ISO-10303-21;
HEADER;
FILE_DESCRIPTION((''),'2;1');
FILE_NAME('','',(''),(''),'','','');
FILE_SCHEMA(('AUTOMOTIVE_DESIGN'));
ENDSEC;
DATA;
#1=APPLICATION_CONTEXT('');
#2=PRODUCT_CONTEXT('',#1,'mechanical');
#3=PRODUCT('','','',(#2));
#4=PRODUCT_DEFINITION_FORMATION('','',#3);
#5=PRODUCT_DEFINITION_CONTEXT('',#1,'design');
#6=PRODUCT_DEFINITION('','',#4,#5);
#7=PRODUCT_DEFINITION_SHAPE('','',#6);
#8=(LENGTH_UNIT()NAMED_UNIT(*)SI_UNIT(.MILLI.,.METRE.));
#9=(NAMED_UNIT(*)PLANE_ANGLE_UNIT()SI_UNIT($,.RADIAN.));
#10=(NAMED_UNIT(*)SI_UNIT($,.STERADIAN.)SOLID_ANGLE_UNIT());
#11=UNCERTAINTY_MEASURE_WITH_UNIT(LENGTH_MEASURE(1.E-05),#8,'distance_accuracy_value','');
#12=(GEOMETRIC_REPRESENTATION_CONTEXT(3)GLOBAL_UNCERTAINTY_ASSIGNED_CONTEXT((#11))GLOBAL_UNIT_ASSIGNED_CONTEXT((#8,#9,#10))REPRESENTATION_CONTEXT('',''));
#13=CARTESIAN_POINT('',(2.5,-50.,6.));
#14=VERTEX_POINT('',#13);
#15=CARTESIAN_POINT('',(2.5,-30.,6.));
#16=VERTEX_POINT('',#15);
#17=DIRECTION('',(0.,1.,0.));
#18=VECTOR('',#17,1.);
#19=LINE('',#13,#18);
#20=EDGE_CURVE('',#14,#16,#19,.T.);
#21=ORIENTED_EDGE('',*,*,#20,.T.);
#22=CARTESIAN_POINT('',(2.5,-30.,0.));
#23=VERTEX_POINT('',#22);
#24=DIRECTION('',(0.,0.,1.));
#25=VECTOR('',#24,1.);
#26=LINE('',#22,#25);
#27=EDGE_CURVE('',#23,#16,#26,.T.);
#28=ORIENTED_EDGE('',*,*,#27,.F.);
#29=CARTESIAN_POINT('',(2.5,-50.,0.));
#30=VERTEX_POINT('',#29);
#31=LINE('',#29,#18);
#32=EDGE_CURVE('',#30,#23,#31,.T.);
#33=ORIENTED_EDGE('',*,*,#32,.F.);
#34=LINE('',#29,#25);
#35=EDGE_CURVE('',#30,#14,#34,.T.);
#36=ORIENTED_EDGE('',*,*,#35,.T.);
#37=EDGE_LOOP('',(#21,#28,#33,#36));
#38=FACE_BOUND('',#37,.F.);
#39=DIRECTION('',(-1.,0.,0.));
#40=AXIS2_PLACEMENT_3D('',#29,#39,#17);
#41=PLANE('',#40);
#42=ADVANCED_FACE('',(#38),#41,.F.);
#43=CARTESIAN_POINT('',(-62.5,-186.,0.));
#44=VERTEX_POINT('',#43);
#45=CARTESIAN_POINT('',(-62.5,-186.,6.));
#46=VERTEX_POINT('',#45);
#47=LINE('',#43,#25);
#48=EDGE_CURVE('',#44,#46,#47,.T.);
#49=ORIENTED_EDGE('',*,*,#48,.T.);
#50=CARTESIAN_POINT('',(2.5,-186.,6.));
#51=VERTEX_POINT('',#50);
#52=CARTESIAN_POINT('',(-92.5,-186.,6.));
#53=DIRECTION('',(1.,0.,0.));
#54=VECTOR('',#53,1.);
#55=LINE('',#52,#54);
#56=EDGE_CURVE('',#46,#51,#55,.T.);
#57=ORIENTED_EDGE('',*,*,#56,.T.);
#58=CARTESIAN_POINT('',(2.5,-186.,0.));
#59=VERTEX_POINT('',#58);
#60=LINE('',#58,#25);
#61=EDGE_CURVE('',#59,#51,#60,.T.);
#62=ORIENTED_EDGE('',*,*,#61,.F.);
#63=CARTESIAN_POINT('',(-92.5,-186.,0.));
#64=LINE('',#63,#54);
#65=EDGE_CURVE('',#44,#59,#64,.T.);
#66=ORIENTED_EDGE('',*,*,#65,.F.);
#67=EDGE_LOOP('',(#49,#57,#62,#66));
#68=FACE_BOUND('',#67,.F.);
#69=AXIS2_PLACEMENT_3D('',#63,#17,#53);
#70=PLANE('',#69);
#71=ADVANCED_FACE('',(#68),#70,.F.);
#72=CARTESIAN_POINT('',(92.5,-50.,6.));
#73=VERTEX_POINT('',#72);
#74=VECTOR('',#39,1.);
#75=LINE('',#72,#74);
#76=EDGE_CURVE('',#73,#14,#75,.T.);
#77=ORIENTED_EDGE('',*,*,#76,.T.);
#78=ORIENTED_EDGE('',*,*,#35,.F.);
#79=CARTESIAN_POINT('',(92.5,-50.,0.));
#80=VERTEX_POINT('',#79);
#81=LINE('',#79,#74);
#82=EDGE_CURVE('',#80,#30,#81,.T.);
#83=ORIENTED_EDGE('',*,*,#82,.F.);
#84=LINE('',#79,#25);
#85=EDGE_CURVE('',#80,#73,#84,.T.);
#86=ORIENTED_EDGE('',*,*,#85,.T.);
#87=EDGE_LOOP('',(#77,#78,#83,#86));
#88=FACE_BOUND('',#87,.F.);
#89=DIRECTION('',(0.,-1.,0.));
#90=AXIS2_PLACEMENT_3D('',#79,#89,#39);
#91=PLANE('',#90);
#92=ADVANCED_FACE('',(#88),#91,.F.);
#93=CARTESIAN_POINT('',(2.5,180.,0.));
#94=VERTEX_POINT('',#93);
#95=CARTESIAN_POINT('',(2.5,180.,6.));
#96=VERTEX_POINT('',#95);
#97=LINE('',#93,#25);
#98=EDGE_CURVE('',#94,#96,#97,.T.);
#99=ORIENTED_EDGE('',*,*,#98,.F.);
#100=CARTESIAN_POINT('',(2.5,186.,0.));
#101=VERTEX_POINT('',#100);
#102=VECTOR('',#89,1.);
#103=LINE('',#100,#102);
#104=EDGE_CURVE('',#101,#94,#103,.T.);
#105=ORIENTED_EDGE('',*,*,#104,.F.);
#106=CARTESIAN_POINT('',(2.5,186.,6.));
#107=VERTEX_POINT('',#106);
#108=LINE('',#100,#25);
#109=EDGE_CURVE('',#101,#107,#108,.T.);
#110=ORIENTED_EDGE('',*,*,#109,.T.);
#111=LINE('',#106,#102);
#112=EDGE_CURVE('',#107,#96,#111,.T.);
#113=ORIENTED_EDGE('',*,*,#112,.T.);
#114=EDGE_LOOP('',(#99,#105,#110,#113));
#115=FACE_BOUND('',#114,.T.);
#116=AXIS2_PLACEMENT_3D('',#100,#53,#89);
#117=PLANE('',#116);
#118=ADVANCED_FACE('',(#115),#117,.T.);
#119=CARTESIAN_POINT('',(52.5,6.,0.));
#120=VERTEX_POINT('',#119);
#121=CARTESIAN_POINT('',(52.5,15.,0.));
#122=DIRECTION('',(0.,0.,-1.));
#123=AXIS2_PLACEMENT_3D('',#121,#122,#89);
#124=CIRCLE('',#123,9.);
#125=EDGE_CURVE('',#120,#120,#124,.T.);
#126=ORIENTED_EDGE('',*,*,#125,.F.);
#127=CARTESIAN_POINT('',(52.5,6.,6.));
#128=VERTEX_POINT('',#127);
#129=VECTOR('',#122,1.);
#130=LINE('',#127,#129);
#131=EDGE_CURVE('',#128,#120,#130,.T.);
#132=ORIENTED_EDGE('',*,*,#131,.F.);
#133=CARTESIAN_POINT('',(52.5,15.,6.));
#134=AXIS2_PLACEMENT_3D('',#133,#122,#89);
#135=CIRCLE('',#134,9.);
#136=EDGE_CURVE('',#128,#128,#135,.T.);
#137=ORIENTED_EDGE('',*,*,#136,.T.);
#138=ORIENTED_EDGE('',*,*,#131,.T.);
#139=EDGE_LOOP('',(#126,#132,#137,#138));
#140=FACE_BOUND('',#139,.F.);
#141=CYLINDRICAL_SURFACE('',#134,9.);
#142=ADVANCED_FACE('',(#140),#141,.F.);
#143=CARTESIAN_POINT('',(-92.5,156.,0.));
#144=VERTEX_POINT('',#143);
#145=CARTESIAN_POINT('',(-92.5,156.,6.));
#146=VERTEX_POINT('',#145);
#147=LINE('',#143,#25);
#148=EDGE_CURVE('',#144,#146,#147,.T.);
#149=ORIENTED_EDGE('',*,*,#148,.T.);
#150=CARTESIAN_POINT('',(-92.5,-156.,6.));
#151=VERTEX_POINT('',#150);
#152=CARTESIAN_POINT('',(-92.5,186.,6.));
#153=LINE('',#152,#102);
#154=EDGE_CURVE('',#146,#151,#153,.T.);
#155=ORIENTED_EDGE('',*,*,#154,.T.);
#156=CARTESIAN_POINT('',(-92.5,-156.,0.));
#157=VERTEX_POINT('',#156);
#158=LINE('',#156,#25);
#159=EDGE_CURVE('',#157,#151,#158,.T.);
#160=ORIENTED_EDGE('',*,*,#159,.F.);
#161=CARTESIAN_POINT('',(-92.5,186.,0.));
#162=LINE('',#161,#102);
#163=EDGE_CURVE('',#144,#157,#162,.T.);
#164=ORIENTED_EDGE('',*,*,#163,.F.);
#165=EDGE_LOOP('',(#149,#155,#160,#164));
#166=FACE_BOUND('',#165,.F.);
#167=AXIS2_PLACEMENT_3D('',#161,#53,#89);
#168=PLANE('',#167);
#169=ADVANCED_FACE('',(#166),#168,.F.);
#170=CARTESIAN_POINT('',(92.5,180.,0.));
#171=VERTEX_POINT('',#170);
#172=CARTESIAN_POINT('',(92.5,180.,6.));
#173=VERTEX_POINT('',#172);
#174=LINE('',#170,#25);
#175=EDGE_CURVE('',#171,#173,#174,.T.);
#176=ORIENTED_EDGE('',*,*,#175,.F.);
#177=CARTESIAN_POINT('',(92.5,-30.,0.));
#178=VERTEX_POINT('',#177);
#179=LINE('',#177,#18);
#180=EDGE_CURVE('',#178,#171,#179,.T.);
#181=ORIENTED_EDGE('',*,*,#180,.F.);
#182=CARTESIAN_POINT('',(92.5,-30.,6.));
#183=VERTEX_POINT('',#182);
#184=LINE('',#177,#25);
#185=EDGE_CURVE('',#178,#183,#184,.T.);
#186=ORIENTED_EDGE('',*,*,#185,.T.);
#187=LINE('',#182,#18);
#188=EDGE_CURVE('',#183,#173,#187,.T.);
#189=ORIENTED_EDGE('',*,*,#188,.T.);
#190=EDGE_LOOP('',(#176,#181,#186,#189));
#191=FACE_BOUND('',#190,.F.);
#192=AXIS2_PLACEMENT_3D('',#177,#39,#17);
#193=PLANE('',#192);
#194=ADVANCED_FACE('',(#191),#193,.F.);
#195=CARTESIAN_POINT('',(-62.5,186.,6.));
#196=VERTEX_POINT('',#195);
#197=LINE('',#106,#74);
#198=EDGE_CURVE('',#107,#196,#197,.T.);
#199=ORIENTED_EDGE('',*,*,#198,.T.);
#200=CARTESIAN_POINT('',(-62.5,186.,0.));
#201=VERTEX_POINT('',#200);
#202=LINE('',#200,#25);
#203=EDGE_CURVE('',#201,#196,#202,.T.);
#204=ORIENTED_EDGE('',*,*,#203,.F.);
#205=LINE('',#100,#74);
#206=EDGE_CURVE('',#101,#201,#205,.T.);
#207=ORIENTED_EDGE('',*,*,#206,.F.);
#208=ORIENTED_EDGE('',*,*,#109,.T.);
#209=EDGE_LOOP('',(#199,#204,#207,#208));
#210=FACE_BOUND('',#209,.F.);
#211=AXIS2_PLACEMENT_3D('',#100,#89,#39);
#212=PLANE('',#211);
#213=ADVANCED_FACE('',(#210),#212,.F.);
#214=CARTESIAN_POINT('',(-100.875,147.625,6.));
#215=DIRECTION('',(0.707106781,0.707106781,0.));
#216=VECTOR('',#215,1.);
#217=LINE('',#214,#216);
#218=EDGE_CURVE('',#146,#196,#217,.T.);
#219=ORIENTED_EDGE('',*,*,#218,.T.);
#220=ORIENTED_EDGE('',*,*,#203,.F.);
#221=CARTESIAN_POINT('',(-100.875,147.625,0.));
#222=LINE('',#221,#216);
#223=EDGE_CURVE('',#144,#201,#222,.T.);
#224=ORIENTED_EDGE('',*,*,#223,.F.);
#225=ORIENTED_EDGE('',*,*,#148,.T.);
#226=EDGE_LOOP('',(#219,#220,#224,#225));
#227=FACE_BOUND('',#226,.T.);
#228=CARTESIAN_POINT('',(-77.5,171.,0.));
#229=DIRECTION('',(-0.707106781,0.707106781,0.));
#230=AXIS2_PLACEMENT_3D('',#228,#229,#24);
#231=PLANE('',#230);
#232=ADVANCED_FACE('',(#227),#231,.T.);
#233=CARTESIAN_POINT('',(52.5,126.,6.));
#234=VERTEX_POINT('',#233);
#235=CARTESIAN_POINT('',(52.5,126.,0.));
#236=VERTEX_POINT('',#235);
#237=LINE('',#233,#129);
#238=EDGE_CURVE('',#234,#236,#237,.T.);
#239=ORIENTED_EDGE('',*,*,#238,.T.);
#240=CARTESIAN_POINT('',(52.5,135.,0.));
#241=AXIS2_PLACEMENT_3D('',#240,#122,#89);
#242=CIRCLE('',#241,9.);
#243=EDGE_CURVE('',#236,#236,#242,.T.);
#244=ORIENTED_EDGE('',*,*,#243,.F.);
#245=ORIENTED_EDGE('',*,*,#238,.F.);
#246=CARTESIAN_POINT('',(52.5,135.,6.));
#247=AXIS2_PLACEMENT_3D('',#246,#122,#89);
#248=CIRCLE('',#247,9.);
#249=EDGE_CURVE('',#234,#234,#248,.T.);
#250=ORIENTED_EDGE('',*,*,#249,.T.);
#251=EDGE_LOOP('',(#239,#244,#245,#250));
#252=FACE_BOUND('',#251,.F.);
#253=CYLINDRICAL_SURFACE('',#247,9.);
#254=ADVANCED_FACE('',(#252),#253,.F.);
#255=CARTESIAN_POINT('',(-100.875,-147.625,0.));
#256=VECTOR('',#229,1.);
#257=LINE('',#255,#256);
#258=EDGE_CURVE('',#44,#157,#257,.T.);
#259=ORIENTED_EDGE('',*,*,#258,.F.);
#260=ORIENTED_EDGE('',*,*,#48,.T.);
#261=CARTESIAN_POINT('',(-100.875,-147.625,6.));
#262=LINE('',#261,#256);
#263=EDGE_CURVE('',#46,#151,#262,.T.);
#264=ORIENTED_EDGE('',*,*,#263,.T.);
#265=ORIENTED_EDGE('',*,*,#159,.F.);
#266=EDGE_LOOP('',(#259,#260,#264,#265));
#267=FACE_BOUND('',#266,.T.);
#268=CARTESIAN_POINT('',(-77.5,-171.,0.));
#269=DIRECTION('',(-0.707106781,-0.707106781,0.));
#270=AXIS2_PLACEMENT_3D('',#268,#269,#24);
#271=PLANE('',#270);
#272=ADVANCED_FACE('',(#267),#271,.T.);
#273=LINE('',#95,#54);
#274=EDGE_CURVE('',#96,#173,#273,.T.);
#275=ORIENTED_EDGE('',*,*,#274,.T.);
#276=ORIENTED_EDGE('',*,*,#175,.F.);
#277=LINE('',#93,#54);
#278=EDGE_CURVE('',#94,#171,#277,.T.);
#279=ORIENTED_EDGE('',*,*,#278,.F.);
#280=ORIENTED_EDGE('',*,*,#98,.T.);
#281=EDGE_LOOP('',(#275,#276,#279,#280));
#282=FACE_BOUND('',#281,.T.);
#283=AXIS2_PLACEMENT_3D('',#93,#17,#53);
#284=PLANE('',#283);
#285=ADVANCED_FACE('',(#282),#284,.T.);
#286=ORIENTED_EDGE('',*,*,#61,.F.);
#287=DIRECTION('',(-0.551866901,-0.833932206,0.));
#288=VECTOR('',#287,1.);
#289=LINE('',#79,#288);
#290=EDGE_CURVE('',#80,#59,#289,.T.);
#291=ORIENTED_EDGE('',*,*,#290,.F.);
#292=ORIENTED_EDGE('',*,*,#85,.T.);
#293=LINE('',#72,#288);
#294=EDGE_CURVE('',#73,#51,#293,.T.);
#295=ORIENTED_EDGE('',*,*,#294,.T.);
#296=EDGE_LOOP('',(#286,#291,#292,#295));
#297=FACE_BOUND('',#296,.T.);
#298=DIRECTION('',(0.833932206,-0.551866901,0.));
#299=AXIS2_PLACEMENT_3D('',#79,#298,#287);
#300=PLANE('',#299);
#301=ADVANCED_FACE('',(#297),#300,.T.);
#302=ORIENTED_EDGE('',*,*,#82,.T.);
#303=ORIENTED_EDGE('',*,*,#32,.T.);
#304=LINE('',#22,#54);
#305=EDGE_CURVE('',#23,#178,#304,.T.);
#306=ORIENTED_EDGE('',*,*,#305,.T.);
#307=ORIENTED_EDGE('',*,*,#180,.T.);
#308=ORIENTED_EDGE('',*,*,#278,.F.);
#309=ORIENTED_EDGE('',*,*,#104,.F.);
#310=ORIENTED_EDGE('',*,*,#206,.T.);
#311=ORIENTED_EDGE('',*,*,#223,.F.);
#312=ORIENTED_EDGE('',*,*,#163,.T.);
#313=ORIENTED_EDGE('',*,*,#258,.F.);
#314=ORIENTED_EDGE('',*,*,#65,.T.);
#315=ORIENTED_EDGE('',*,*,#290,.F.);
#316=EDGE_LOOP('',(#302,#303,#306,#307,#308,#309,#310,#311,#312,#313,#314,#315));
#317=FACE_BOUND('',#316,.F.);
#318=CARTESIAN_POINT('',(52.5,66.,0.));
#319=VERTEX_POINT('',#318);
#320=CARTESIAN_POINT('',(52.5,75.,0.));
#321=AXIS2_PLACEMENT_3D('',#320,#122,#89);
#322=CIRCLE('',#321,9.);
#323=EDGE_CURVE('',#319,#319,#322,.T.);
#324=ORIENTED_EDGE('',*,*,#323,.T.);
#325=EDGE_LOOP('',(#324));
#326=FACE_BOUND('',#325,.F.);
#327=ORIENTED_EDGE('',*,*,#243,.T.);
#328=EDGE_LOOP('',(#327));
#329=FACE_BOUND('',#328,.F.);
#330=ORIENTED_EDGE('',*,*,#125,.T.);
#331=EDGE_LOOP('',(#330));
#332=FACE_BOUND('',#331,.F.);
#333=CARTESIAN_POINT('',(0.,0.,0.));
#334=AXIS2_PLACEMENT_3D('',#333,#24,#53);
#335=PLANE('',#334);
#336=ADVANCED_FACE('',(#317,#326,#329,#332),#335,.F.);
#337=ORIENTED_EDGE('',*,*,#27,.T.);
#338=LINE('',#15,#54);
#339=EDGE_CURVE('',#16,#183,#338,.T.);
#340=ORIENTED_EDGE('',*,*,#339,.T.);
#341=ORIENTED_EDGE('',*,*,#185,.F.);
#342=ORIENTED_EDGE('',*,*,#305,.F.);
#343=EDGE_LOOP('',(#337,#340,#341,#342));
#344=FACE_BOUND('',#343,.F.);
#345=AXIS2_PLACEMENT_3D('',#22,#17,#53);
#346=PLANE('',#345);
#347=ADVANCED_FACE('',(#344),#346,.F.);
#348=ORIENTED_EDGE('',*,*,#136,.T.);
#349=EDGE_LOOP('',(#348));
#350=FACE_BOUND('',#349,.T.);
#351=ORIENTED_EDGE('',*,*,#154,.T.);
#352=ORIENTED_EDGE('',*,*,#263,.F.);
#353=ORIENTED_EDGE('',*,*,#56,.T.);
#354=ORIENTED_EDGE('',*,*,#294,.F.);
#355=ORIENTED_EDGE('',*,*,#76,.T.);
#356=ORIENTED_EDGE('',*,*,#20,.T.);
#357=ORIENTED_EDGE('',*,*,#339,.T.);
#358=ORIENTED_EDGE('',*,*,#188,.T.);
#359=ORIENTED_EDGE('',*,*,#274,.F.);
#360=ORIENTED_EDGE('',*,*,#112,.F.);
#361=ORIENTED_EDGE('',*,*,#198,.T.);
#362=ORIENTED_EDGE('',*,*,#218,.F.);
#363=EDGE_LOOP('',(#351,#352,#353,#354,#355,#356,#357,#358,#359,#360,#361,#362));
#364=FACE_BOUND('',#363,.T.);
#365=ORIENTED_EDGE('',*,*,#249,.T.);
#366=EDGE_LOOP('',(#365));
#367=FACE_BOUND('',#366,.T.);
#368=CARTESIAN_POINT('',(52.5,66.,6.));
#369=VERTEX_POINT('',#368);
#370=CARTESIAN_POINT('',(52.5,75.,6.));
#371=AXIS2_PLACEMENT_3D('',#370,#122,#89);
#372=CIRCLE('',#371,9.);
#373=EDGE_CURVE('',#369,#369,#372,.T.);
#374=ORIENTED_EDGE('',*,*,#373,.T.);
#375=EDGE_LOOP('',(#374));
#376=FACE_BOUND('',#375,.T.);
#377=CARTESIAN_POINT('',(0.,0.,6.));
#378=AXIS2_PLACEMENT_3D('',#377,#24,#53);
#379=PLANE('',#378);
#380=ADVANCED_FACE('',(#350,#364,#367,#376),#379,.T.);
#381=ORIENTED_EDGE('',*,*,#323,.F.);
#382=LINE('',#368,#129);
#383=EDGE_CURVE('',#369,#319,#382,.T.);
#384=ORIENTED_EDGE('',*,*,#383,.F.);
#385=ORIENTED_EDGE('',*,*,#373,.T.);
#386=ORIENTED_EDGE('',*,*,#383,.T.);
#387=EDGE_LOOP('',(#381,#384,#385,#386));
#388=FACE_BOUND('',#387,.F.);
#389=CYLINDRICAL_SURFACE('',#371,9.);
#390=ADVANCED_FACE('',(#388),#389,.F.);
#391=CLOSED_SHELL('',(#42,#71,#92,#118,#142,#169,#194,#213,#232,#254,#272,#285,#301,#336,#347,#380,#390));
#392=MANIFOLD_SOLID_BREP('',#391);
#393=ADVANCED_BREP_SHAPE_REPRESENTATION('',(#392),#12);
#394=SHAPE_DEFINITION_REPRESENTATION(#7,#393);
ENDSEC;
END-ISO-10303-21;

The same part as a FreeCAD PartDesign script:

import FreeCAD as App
import Part
import Sketcher
Q = App.Units.Quantity


def edges_at(feature, points):
    """Names of the edges that pass closest to the given points."""
    edges = feature.Shape.Edges
    near = lambda p: min(range(len(edges)), key=lambda i: edges[i].distToShape(Part.Vertex(*p))[0])
    return sorted({f"Edge{near(p) + 1}" for p in points})


def add_polygon(sketch, points):
    """Adds a closed chain of lines whose ends are joined by coincident constraints."""
    first, n = sketch.GeometryCount, len(points)
    for a, b in zip(points, points[1:] + points[:1]):
        sketch.addGeometry(Part.LineSegment(App.Vector(*a, 0), App.Vector(*b, 0)), False)
    for i in range(n):
        sketch.addConstraint(Sketcher.Constraint("Coincident", first + i, 2, first + (i + 1) % n, 1))

doc = App.newDocument("Part")
body = doc.addObject("PartDesign::Body", "Body")

sketch1 = body.newObject("Sketcher::SketchObject", "Sketch")
sketch1.AttachmentSupport = (doc.getObject("XY_Plane"), [""])
sketch1.MapMode = "FlatFace"
add_polygon(sketch1, [(2, 180), (2, 186), (-92, 186), (-92, -186), (2, -186), (92, -50), (2, -50), (2, -30), (92, -30), (92, 180)])
sketch1.addConstraint(Sketcher.Constraint("Vertical", 0))
sketch1.addConstraint(Sketcher.Constraint("Horizontal", 1))
sketch1.addConstraint(Sketcher.Constraint("Vertical", 2))
sketch1.addConstraint(Sketcher.Constraint("Horizontal", 3))
sketch1.addConstraint(Sketcher.Constraint("Horizontal", 5))
sketch1.addConstraint(Sketcher.Constraint("Vertical", 6))
sketch1.addConstraint(Sketcher.Constraint("Horizontal", 7))
sketch1.addConstraint(Sketcher.Constraint("Vertical", 8))
sketch1.addConstraint(Sketcher.Constraint("Horizontal", 9))
sketch1.addConstraint(Sketcher.Constraint("Symmetric", 0, 2, 3, 2, -1))
sketch1.addConstraint(Sketcher.Constraint("Vertical", 3, 2, 5, 2))
sketch1.addConstraint(Sketcher.Constraint("Vertical", 4, 2, 7, 2))
sketch1.addConstraint(Sketcher.Constraint("DistanceX", 1, 2, 1, 1, Q("95 mm")))
sketch1.addConstraint(Sketcher.Constraint("DistanceX", 5, 2, 5, 1, Q("90 mm")))
sketch1.addConstraint(Sketcher.Constraint("DistanceY", 2, 2, 2, 1, Q("372 mm")))
sketch1.addConstraint(Sketcher.Constraint("DistanceY", 6, 1, 6, 2, Q("20 mm")))
sketch1.addConstraint(Sketcher.Constraint("DistanceY", 0, 1, 0, 2, Q("6 mm")))
sketch1.addConstraint(Sketcher.Constraint("DistanceY", 8, 1, 8, 2, Q("210 mm")))
sketch1.addConstraint(Sketcher.Constraint("DistanceX", -1, 1, 0, 2, Q("2.5 mm")))
pad1 = body.newObject("PartDesign::Pad", "Pad")
pad1.Profile = sketch1
pad1.Length = 6
doc.recompute()

chamfer = body.newObject("PartDesign::Chamfer", "Chamfer")
chamfer.Base = (pad1, edges_at(pad1, [(-92.5, -186, 3), (-92.5, 186, 3)]))
chamfer.Size = 30

sketch2 = body.newObject("Sketcher::SketchObject", "Sketch001")
sketch2.AttachmentSupport = (doc.getObject("XY_Plane"), [""])
sketch2.MapMode = "FlatFace"
sketch2.AttachmentOffset = App.Placement(App.Vector(0, 0, 6), App.Rotation())
sketch2.addGeometry(Part.Circle(App.Vector(52, 135, 0), App.Vector(0, 0, 1), 9), False)
sketch2.addGeometry(Part.Circle(App.Vector(52, 75, 0), App.Vector(0, 0, 1), 9), False)
sketch2.addGeometry(Part.Circle(App.Vector(52, 15, 0), App.Vector(0, 0, 1), 9), False)
sketch2.addConstraint(Sketcher.Constraint("Equal", 0, 1))
sketch2.addConstraint(Sketcher.Constraint("Equal", 1, 2))
sketch2.addConstraint(Sketcher.Constraint("Vertical", 0, 3, 1, 3))
sketch2.addConstraint(Sketcher.Constraint("Vertical", 1, 3, 2, 3))
sketch2.addConstraint(Sketcher.Constraint("Diameter", 0, Q("18 mm")))
sketch2.addConstraint(Sketcher.Constraint("DistanceY", -1, 1, 0, 3, Q("135 mm")))
sketch2.addConstraint(Sketcher.Constraint("DistanceY", -1, 1, 1, 3, Q("75 mm")))
sketch2.addConstraint(Sketcher.Constraint("DistanceY", -1, 1, 2, 3, Q("15 mm")))
sketch2.addConstraint(Sketcher.Constraint("DistanceX", -1, 1, 0, 3, Q("52.5 mm")))
doc.recompute()
hole = body.newObject("PartDesign::Hole", "Hole")
hole.Profile = sketch2
hole.ThreadType = "None"
hole.Diameter = 18
hole.DepthType = "ThroughAll"

doc.recompute()
